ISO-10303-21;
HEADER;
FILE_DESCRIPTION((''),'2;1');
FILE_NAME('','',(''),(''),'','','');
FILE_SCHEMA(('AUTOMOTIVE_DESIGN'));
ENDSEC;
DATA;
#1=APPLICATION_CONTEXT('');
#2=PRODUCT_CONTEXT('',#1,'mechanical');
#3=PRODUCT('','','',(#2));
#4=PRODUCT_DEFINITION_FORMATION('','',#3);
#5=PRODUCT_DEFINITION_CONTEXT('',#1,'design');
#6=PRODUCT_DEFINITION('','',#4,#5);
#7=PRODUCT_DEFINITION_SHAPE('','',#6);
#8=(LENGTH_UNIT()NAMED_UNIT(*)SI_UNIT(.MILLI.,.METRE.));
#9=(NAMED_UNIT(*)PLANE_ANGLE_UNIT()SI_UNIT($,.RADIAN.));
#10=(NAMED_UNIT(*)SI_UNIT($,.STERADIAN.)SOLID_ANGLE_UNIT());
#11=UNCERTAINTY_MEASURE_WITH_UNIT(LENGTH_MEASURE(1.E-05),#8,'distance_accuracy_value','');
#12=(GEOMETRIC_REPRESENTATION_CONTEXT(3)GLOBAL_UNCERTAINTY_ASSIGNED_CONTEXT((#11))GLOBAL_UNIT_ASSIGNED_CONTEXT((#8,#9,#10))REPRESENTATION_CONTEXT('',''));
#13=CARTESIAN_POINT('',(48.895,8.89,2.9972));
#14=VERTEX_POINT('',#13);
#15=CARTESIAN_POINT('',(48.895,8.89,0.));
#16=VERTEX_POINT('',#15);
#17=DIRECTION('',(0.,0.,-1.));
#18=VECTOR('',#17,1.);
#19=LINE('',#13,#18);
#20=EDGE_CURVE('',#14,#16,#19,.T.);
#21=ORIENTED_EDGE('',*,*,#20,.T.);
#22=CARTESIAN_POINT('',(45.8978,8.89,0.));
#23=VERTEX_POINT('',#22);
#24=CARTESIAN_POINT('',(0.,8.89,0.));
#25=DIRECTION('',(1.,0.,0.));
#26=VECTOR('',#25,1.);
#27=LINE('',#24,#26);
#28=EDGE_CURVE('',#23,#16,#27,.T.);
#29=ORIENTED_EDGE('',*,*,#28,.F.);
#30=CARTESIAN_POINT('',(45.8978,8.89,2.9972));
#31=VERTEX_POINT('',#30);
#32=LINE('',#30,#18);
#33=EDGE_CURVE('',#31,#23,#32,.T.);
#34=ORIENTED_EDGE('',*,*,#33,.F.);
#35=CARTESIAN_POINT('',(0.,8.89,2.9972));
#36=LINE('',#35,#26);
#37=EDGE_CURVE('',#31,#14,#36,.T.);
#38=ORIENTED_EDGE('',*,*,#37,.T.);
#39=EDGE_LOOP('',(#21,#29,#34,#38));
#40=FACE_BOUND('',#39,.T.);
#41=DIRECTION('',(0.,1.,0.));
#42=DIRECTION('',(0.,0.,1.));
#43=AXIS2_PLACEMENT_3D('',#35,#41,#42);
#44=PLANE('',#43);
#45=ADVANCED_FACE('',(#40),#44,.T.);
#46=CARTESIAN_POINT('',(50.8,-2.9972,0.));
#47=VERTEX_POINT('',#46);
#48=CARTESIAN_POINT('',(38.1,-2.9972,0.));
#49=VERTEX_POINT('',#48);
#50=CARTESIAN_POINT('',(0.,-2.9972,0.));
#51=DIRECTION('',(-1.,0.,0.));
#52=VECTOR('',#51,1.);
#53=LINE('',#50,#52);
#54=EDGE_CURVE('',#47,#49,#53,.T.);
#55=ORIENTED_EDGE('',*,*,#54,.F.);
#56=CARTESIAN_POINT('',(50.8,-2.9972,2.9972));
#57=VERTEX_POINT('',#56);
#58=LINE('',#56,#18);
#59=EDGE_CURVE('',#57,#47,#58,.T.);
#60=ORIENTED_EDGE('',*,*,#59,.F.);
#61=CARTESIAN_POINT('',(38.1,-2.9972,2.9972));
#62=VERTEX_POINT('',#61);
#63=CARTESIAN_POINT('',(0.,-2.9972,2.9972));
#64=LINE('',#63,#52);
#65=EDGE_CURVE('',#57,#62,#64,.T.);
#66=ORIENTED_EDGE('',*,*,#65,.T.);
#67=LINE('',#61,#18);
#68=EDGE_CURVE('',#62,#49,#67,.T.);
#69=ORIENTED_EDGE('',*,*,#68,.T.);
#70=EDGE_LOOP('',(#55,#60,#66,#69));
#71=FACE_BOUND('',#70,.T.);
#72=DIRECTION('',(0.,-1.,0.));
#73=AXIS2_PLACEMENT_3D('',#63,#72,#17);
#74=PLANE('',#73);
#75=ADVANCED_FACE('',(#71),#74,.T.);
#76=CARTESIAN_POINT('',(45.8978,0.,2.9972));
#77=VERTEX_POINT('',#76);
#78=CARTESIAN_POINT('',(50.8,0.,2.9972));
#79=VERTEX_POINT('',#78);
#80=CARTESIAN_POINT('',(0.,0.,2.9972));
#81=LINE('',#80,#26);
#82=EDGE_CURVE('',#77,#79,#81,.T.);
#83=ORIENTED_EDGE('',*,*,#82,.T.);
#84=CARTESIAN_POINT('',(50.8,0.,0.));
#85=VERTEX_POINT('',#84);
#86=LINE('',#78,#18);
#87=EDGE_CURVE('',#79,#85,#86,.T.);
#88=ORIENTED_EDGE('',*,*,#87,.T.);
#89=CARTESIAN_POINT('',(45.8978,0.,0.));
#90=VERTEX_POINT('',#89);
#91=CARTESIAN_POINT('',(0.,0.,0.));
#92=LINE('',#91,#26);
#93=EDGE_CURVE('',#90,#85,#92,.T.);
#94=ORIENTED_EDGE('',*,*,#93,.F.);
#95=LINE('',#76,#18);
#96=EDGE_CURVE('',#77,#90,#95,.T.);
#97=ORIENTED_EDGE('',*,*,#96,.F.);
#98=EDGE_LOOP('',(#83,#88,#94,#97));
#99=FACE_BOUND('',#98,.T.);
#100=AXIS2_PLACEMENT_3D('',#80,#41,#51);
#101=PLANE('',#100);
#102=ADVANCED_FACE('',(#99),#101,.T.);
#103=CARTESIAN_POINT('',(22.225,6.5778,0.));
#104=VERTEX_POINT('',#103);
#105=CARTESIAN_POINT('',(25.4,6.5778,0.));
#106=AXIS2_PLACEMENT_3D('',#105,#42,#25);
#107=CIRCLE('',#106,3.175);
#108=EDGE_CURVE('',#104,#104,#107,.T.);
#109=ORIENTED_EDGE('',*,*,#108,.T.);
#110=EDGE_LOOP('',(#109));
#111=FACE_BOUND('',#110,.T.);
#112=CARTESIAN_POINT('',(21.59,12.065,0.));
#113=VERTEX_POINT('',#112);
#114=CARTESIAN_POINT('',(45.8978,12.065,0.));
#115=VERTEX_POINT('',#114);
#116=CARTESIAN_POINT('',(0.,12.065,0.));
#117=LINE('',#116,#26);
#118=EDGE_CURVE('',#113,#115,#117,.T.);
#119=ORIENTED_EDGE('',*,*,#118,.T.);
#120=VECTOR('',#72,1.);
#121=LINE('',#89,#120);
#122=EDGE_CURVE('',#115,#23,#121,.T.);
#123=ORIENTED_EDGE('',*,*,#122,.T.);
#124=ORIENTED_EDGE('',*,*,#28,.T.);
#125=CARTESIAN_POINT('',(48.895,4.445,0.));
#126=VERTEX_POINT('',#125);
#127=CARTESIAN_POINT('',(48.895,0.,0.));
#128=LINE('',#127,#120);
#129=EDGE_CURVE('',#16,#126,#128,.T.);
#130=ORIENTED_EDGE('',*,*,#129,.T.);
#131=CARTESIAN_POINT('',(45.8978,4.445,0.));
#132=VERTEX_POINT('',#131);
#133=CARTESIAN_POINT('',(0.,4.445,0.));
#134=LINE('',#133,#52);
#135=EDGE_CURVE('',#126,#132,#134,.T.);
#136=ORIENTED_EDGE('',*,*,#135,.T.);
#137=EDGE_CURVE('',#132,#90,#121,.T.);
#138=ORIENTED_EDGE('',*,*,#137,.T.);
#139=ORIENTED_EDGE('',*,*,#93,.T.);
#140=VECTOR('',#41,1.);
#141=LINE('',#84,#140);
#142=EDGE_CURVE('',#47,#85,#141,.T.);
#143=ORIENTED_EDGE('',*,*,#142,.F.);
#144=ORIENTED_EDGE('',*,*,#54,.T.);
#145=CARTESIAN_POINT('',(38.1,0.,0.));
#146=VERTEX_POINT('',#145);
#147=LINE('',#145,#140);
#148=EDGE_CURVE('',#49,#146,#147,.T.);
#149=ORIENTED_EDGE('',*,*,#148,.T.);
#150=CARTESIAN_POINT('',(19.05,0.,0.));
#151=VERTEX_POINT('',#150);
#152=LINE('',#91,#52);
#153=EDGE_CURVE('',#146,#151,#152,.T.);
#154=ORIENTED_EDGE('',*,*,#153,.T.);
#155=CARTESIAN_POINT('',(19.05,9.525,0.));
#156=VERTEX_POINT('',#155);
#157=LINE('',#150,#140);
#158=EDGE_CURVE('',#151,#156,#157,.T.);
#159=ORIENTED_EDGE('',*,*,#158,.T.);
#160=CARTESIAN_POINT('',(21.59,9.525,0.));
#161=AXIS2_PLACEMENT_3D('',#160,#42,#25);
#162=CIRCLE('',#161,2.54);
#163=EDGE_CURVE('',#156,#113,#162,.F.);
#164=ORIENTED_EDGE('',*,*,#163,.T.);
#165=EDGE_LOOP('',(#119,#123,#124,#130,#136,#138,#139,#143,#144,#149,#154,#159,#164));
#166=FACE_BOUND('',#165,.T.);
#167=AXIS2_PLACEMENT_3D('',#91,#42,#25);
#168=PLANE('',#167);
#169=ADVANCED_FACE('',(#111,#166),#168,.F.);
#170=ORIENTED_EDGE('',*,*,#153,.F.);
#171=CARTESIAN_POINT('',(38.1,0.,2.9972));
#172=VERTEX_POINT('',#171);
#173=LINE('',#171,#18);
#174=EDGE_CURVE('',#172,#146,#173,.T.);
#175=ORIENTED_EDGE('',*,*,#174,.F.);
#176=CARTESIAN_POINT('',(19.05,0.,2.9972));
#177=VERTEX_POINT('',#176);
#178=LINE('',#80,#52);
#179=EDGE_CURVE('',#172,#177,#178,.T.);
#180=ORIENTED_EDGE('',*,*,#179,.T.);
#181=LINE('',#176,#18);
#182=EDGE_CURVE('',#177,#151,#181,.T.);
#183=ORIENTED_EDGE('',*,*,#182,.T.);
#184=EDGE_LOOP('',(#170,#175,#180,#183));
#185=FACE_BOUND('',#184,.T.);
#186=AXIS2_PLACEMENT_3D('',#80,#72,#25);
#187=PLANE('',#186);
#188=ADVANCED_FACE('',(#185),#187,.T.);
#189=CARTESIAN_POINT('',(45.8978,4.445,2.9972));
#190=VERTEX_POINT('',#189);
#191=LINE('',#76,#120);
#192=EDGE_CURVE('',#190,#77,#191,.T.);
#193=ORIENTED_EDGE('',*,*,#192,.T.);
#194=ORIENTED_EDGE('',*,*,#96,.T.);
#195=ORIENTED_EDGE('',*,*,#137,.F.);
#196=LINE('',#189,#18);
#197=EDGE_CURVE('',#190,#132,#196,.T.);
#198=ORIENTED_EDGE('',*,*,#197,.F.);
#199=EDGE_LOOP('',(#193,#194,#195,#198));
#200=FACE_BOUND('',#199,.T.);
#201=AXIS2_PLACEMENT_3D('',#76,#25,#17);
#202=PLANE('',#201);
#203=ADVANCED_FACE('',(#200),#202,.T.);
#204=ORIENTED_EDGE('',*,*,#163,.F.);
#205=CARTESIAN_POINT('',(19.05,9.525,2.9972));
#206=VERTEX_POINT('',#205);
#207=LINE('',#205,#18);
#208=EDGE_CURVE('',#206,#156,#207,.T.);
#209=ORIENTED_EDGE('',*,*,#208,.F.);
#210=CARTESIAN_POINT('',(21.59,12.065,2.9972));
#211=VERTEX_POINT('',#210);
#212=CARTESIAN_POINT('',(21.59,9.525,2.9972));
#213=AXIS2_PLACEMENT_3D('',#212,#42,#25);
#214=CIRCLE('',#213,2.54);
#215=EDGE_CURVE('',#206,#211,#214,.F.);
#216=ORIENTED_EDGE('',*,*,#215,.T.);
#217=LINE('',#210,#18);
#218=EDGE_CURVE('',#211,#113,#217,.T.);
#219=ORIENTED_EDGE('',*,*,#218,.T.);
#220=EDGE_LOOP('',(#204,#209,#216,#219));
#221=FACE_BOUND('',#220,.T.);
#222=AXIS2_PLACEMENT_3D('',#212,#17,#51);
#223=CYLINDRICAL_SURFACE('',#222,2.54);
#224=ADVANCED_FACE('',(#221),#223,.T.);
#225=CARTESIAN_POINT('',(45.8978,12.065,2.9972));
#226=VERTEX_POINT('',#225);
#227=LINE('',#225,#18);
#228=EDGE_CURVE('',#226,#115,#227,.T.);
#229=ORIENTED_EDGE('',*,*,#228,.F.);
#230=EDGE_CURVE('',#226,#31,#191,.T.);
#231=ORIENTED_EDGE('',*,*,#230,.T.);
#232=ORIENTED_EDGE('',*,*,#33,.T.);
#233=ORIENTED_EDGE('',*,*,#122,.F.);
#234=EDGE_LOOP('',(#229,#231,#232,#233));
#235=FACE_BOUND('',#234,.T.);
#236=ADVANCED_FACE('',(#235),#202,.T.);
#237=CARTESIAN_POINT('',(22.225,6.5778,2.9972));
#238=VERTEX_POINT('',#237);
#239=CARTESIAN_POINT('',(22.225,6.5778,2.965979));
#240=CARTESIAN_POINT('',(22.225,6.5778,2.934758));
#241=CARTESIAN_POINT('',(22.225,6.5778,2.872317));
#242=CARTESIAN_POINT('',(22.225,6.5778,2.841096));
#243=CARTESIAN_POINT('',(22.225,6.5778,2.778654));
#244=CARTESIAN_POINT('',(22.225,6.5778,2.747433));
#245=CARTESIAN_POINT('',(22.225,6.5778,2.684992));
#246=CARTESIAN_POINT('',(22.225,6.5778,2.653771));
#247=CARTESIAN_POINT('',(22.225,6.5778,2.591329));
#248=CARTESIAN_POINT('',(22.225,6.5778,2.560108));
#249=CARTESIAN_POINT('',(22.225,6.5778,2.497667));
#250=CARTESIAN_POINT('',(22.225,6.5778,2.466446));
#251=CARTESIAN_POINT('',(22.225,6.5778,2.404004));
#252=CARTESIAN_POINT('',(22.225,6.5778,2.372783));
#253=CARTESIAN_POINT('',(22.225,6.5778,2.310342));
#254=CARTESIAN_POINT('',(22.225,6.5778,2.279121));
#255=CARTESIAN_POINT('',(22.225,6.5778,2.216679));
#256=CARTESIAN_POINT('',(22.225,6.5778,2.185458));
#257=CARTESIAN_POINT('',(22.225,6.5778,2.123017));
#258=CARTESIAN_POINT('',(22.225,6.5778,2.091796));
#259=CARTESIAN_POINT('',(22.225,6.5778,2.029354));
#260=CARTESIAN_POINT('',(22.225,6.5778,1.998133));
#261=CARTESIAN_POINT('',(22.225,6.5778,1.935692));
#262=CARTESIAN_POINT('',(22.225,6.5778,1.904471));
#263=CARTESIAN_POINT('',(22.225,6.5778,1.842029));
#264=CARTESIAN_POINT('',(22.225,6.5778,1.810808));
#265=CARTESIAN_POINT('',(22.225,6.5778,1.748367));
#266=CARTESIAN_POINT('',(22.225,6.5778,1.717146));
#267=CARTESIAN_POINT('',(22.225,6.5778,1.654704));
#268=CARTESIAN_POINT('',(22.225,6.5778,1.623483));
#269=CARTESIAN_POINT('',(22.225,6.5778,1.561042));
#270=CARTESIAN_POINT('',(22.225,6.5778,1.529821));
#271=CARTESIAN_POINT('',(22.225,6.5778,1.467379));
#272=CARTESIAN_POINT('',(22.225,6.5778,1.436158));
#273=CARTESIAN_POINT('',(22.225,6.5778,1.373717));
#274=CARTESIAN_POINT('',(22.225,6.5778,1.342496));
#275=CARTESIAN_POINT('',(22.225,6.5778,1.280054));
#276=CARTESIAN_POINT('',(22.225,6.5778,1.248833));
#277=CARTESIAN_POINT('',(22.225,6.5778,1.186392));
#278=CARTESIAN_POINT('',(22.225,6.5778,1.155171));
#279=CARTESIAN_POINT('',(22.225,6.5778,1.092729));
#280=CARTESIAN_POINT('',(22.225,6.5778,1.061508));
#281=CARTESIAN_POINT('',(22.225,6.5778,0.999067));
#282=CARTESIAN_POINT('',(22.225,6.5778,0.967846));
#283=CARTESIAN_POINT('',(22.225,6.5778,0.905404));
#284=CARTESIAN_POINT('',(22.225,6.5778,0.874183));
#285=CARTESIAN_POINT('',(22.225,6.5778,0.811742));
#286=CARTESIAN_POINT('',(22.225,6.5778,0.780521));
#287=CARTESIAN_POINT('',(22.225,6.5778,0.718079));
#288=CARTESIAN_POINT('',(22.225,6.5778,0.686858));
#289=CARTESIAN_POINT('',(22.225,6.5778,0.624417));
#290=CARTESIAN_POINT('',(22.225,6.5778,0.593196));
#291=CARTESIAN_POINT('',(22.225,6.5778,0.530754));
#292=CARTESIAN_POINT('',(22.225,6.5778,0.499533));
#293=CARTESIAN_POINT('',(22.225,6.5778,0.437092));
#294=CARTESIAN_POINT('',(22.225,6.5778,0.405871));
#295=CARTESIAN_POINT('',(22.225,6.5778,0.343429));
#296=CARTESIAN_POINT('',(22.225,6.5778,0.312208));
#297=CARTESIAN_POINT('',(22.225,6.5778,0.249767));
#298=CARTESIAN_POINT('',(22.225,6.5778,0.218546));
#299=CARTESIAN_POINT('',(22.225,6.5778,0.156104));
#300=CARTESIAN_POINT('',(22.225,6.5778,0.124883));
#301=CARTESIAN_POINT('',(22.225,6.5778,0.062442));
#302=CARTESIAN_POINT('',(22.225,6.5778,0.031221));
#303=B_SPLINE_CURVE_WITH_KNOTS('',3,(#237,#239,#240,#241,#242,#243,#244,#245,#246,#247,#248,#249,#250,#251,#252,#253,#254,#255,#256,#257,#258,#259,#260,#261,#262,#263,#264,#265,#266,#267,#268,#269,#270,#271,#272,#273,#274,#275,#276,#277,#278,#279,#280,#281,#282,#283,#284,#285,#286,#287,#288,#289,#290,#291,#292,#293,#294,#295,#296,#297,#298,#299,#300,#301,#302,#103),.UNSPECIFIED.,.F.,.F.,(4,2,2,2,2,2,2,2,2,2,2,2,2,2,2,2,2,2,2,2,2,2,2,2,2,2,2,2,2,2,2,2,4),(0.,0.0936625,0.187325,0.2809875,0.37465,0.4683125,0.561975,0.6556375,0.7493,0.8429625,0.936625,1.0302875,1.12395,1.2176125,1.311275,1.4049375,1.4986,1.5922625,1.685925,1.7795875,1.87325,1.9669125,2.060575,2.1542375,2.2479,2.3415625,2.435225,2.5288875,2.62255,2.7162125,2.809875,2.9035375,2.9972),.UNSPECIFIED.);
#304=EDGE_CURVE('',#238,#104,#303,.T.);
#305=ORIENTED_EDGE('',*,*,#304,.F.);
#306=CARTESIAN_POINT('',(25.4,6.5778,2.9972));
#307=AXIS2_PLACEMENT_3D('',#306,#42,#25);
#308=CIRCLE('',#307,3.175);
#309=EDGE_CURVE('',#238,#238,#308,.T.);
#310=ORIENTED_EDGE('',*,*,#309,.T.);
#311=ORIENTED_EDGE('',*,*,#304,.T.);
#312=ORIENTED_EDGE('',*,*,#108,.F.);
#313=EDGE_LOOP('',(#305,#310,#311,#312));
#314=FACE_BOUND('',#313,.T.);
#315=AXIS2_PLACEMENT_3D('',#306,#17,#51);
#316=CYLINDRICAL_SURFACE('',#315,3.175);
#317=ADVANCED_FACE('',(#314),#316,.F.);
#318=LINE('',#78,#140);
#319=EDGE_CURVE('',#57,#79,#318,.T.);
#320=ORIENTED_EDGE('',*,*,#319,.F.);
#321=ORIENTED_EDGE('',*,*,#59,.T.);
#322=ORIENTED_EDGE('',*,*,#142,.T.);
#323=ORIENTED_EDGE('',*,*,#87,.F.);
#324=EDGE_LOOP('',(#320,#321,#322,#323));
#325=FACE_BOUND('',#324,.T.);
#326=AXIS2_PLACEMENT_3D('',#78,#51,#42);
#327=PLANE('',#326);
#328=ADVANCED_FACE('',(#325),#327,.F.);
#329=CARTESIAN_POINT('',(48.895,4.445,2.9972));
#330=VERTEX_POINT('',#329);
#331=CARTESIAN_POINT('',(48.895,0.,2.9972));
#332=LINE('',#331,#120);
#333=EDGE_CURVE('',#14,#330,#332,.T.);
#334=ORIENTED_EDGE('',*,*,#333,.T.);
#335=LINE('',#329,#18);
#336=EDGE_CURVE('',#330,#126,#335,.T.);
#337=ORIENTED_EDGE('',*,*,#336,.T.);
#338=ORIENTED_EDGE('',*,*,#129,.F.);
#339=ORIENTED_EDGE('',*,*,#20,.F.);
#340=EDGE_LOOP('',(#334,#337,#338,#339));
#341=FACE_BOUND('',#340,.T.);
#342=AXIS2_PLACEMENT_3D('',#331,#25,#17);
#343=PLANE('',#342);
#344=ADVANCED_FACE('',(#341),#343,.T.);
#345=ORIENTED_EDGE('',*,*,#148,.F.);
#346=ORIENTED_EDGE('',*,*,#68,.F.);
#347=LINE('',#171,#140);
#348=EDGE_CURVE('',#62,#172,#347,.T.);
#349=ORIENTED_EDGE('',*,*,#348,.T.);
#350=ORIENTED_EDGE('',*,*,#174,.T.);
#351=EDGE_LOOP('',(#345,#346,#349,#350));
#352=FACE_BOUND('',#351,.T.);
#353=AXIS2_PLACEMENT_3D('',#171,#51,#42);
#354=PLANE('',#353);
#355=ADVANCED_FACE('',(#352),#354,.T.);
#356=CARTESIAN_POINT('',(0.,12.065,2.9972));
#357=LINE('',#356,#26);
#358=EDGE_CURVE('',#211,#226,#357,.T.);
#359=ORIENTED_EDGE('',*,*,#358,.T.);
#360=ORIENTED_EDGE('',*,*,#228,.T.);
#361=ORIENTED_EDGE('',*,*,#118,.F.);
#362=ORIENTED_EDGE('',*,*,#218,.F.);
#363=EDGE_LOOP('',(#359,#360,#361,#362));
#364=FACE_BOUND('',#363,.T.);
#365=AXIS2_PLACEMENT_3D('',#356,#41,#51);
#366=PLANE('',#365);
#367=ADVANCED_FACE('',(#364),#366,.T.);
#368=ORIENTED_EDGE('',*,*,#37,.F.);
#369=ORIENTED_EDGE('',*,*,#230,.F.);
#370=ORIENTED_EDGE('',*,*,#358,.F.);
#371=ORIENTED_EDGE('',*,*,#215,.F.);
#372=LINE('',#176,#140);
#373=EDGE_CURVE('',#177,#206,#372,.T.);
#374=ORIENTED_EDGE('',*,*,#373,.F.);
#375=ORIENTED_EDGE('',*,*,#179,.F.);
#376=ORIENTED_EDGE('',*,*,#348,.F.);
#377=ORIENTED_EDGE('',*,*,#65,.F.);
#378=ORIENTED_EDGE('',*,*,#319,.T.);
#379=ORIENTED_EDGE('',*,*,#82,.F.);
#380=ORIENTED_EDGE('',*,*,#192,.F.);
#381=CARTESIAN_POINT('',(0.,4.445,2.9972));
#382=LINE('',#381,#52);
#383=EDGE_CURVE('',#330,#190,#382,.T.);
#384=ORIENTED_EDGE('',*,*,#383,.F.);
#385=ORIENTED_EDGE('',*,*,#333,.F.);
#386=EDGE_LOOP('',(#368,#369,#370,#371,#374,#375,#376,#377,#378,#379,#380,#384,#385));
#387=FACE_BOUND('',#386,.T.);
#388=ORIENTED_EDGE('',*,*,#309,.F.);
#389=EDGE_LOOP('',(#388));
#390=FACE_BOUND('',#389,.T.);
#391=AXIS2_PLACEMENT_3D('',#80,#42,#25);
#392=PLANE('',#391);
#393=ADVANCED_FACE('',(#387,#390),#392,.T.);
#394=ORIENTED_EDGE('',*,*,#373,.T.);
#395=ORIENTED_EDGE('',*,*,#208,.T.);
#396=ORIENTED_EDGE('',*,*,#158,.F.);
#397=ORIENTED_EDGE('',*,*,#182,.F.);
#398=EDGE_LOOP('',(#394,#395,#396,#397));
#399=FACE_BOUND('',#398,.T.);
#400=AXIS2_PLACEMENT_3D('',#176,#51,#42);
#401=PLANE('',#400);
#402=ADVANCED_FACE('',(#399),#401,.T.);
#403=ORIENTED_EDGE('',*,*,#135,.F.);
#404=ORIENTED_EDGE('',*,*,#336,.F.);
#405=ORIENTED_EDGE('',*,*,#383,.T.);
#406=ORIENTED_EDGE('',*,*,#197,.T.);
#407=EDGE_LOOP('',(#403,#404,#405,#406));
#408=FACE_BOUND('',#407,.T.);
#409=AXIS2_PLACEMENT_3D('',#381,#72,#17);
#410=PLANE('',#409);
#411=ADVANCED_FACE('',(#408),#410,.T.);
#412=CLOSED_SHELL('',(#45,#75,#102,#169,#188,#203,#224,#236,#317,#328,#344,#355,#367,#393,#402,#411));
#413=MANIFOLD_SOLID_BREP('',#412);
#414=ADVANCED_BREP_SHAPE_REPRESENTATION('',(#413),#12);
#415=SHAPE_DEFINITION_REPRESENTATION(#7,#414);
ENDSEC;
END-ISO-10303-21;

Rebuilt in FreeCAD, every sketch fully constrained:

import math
import FreeCAD as App
import Part
import Sketcher
Q = App.Units.Quantity

doc = App.newDocument("Part")
body = doc.addObject("PartDesign::Body", "Body")

sketch1 = body.newObject("Sketcher::SketchObject", "Sketch")
sketch1.AttachmentSupport = (doc.getObject("XY_Plane"), [""])
sketch1.MapMode = "FlatFace"
sketch1.addGeometry(Part.LineSegment(App.Vector(50.8, 0, 0), App.Vector(45.9, 0, 0)), False)
sketch1.addGeometry(Part.LineSegment(App.Vector(45.9, 0, 0), App.Vector(45.9, 4.4, 0)), False)
sketch1.addGeometry(Part.LineSegment(App.Vector(45.9, 4.4, 0), App.Vector(48.9, 4.4, 0)), False)
sketch1.addGeometry(Part.LineSegment(App.Vector(48.9, 4.4, 0), App.Vector(48.9, 8.9, 0)), False)
sketch1.addGeometry(Part.LineSegment(App.Vector(48.9, 8.9, 0), App.Vector(45.9, 8.9, 0)), False)
sketch1.addGeometry(Part.LineSegment(App.Vector(45.9, 8.9, 0), App.Vector(45.9, 12.1, 0)), False)
sketch1.addGeometry(Part.LineSegment(App.Vector(45.9, 12.1, 0), App.Vector(21.6, 12.1, 0)), False)
sketch1.addGeometry(Part.ArcOfCircle(Part.Circle(App.Vector(21.6, 9.5, 0), App.Vector(0, 0, 1), 2.5), math.radians(90), math.radians(180)), False)
sketch1.addGeometry(Part.LineSegment(App.Vector(19.1, 9.5, 0), App.Vector(19.1, 0, 0)), False)
sketch1.addGeometry(Part.LineSegment(App.Vector(19.1, 0, 0), App.Vector(38.1, 0, 0)), False)
sketch1.addGeometry(Part.LineSegment(App.Vector(38.1, 0, 0), App.Vector(38.1, -3, 0)), False)
sketch1.addGeometry(Part.LineSegment(App.Vector(38.1, -3, 0), App.Vector(50.8, -3, 0)), False)
sketch1.addGeometry(Part.LineSegment(App.Vector(50.8, -3, 0), App.Vector(50.8, 0, 0)), False)
sketch1.addGeometry(Part.Circle(App.Vector(25.4, 6.6, 0), App.Vector(0, 0, 1), 3.2), False)
sketch1.addConstraint(Sketcher.Constraint("Coincident", 0, 2, 1, 1))
sketch1.addConstraint(Sketcher.Constraint("Coincident", 1, 2, 2, 1))
sketch1.addConstraint(Sketcher.Constraint("Coincident", 2, 2, 3, 1))
sketch1.addConstraint(Sketcher.Constraint("Coincident", 3, 2, 4, 1))
sketch1.addConstraint(Sketcher.Constraint("Coincident", 4, 2, 5, 1))
sketch1.addConstraint(Sketcher.Constraint("Coincident", 5, 2, 6, 1))
sketch1.addConstraint(Sketcher.Constraint("Tangent", 6, 2, 7, 1))
sketch1.addConstraint(Sketcher.Constraint("Tangent", 7, 2, 8, 1))
sketch1.addConstraint(Sketcher.Constraint("Coincident", 8, 2, 9, 1))
sketch1.addConstraint(Sketcher.Constraint("Coincident", 9, 2, 10, 1))
sketch1.addConstraint(Sketcher.Constraint("Coincident", 10, 2, 11, 1))
sketch1.addConstraint(Sketcher.Constraint("Coincident", 11, 2, 12, 1))
sketch1.addConstraint(Sketcher.Constraint("Coincident", 12, 2, 0, 1))
sketch1.addConstraint(Sketcher.Constraint("Horizontal", 0))
sketch1.addConstraint(Sketcher.Constraint("Vertical", 1))
sketch1.addConstraint(Sketcher.Constraint("Horizontal", 2))
sketch1.addConstraint(Sketcher.Constraint("Vertical", 3))
sketch1.addConstraint(Sketcher.Constraint("Horizontal", 4))
sketch1.addConstraint(Sketcher.Constraint("Vertical", 5))
sketch1.addConstraint(Sketcher.Constraint("Horizontal", 6))
sketch1.addConstraint(Sketcher.Constraint("Vertical", 8))
sketch1.addConstraint(Sketcher.Constraint("Horizontal", 9))
sketch1.addConstraint(Sketcher.Constraint("Vertical", 10))
sketch1.addConstraint(Sketcher.Constraint("Horizontal", 11))
sketch1.addConstraint(Sketcher.Constraint("Vertical", 12))
sketch1.addConstraint(Sketcher.Constraint("PointOnObject", 0, 2, -1))
sketch1.addConstraint(Sketcher.Constraint("PointOnObject", 8, 2, -1))
sketch1.addConstraint(Sketcher.Constraint("Vertical", 1, 2, 4, 2))
sketch1.addConstraint(Sketcher.Constraint("Equal", 1, 3))
sketch1.addConstraint(Sketcher.Constraint("Equal", 4, 10))
sketch1.addConstraint(Sketcher.Constraint("Radius", 7, Q("0.1 in")))
sketch1.addConstraint(Sketcher.Constraint("Diameter", 13, Q("0.25 in")))
sketch1.addConstraint(Sketcher.Constraint("DistanceX", 11, 1, 11, 2, Q("0.5 in")))
sketch1.addConstraint(Sketcher.Constraint("DistanceX", -1, 1, 13, 3, Q("1 in")))
sketch1.addConstraint(Sketcher.Constraint("DistanceX", -1, 1, 11, 2, Q("2 in")))
sketch1.addConstraint(Sketcher.Constraint("DistanceX", 9, 1, 9, 2, Q("0.75 in")))
sketch1.addConstraint(Sketcher.Constraint("DistanceY", 1, 2, 7, 3, Q("0.2 in")))
sketch1.addConstraint(Sketcher.Constraint("DistanceX", 0, 2, 0, 1, Q("0.193 in")))
sketch1.addConstraint(Sketcher.Constraint("DistanceX", 2, 1, 2, 2, Q("0.118 in")))
sketch1.addConstraint(Sketcher.Constraint("DistanceY", 1, 1, 1, 2, Q("0.175 in")))
sketch1.addConstraint(Sketcher.Constraint("DistanceY", -1, 1, 13, 3, 6.5778))
pad1 = body.newObject("PartDesign::Pad", "Pad")
pad1.Profile = sketch1
pad1.Length = Q("0.118 in")

doc.recompute()
